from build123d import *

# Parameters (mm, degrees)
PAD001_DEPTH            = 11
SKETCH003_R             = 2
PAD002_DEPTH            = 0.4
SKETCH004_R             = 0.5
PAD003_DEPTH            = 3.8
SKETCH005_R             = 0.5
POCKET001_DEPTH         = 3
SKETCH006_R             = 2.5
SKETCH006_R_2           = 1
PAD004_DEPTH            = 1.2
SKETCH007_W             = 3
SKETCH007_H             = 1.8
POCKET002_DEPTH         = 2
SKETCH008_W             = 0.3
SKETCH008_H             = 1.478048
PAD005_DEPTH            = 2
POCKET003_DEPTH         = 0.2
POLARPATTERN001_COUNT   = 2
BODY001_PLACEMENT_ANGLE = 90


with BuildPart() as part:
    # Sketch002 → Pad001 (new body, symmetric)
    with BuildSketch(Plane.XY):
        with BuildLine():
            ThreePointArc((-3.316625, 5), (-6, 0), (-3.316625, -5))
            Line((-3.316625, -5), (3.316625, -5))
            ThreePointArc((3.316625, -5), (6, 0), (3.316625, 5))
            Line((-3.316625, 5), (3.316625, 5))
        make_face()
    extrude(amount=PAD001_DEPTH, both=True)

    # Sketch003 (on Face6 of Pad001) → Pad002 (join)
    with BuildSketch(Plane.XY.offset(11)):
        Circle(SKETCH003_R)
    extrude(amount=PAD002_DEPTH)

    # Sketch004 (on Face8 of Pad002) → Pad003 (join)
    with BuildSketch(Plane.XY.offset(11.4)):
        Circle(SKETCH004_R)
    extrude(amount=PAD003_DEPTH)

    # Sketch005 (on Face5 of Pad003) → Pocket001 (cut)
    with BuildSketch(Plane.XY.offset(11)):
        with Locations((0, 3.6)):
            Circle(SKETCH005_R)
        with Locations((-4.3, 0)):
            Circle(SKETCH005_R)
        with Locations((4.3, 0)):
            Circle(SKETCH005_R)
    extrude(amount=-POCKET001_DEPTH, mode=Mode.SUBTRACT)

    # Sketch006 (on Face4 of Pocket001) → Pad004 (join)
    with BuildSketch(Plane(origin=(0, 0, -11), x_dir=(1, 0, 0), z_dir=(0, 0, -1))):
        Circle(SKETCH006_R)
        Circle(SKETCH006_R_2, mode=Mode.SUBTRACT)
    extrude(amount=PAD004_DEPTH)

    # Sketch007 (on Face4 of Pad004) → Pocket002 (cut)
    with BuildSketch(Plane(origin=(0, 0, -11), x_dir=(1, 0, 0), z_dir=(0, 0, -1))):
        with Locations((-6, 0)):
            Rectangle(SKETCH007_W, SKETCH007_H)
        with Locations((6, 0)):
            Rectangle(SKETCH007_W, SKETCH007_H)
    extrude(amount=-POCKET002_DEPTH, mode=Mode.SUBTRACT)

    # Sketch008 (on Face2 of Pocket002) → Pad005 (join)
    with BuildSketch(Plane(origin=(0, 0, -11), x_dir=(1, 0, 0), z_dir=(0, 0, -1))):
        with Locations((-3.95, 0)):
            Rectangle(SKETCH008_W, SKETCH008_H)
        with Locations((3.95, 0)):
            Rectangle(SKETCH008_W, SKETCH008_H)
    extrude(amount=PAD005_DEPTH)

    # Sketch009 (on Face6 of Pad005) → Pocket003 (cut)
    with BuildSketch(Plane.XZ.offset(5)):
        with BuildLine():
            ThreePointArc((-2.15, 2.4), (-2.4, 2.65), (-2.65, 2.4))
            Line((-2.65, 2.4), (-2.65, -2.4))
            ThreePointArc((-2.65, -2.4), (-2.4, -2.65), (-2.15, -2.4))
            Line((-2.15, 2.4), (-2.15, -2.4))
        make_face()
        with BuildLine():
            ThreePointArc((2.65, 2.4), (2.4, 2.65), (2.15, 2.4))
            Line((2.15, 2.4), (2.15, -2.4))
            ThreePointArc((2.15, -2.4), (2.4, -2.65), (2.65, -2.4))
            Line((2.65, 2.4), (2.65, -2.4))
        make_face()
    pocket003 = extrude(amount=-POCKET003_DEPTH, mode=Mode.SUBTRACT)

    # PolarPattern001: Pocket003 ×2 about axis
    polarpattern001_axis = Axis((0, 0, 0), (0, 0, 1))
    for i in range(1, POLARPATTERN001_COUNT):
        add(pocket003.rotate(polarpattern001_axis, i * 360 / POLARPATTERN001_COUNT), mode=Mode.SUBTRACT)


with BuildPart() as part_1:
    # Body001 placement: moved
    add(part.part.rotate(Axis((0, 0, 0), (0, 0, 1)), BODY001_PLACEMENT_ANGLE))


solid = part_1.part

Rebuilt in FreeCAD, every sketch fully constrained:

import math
import FreeCAD as App
import Part
import Sketcher
from FreeCAD import Vector

doc = App.newDocument("Part")
params = doc.addObject("Spreadsheet::Sheet", "Params")
for row, (alias, value) in enumerate([
    ("sketch1_radius", "6 mm"),
    ("pad1_length", "22 mm"),
    ("sketch2_diameter", "4 mm"),
    ("pad2_length", "0.4 mm"),
    ("sketch3_diameter", "1 mm"),
    ("pad3_length", "3.8 mm"),
    ("sketch4_diameter", "1 mm"),
    ("pocket1_length", "3 mm"),
    ("sketch5_diameter", "5 mm"),
    ("sketch5_diameter2", "2 mm"),
    ("pad4_length", "1.2 mm"),
    ("sketch6_width", "3 mm"),
    ("sketch6_height", "1.8 mm"),
    ("pocket2_length", "2 mm"),
    ("sketch7_width", "0.3 mm"),
    ("pad5_length", "2 mm"),
    ("sketch8_radius", "0.25 mm"),
    ("sketch8_height", "4.8 mm"),
    ("pocket3_length", "0.2 mm"),
], start=1):
    params.set(f"A{row}", alias)
    params.set(f"B{row}", "=" + value)
    params.setAlias(f"B{row}", alias)

body = doc.addObject("PartDesign::Body", "Body")

# Sketch on XY plane
sketch1 = body.newObject("Sketcher::SketchObject", "Sketch")
sketch1.AttachmentSupport = (doc.getObject("XY_Plane"), [""])
sketch1.MapMode = "FlatFace"
sketch1.addGeometry([
    Part.ArcOfCircle(Part.Circle(Vector(0, 0, 0), Vector(0, 0, 1), 6), math.radians(124), math.radians(236)),
    Part.LineSegment(Vector(-3, -5, 0), Vector(3, -5, 0)),
    Part.ArcOfCircle(Part.Circle(Vector(0, 0, 0), Vector(0, 0, 1), 6), math.radians(-56), math.radians(56)),
    Part.LineSegment(Vector(3, 5, 0), Vector(-3, 5, 0)),
], False)
sketch1.addConstraint([
    Sketcher.Constraint("Coincident", 0, 2, 1, 1),
    Sketcher.Constraint("Coincident", 1, 2, 2, 1),
    Sketcher.Constraint("Coincident", 2, 2, 3, 1),
    Sketcher.Constraint("Coincident", 3, 2, 0, 1),
    Sketcher.Constraint("Horizontal", 1),
    Sketcher.Constraint("Horizontal", 3),
    Sketcher.Constraint("Coincident", 0, 3, -1, 1),
    Sketcher.Constraint("Coincident", 2, 3, -1, 1),
    Sketcher.Constraint("Equal", 0, 2),
    Sketcher.Constraint("Vertical", 1, 2, 2, 2),
    Sketcher.Constraint("Radius", 0, 6.0),
    Sketcher.Constraint("DistanceY", 0, 2, -1, 1, 5.0),
])
sketch1.setExpression("Constraints[10]", "Params.sketch1_radius")
pad1 = body.newObject("PartDesign::Pad", "Pad")
pad1.Profile = sketch1
pad1.setExpression("Length", "Params.pad1_length")
pad1.Midplane = True

# Sketch on XY plane
sketch2 = body.newObject("Sketcher::SketchObject", "Sketch001")
sketch2.AttachmentSupport = (doc.getObject("XY_Plane"), [""])
sketch2.MapMode = "FlatFace"
sketch2.AttachmentOffset = App.Placement(Vector(0, 0, 11), App.Rotation())
sketch2.addGeometry(Part.Circle(Vector(0, 0, 0), Vector(0, 0, 1), 2), False)
sketch2.addConstraint([
    Sketcher.Constraint("Coincident", 0, 3, -1, 1),
    Sketcher.Constraint("Diameter", 0, 4.0),
])
sketch2.setExpression("Constraints[1]", "Params.sketch2_diameter")
pad2 = body.newObject("PartDesign::Pad", "Pad001")
pad2.Profile = sketch2
pad2.setExpression("Length", "Params.pad2_length")

# Sketch on XY plane
sketch3 = body.newObject("Sketcher::SketchObject", "Sketch002")
sketch3.AttachmentSupport = (doc.getObject("XY_Plane"), [""])
sketch3.MapMode = "FlatFace"
sketch3.AttachmentOffset = App.Placement(Vector(0, 0, 11.4), App.Rotation())
sketch3.addGeometry(Part.Circle(Vector(0, 0, 0), Vector(0, 0, 1), 0.5), False)
sketch3.addConstraint([
    Sketcher.Constraint("Coincident", 0, 3, -1, 1),
    Sketcher.Constraint("Diameter", 0, 1.0),
])
sketch3.setExpression("Constraints[1]", "Params.sketch3_diameter")
pad3 = body.newObject("PartDesign::Pad", "Pad002")
pad3.Profile = sketch3
pad3.setExpression("Length", "Params.pad3_length")

# Sketch on XY plane
sketch4 = body.newObject("Sketcher::SketchObject", "Sketch003")
sketch4.AttachmentSupport = (doc.getObject("XY_Plane"), [""])
sketch4.MapMode = "FlatFace"
sketch4.AttachmentOffset = App.Placement(Vector(0, 0, 11), App.Rotation())
sketch4.addGeometry([
    Part.Circle(Vector(0, 3.6, 0), Vector(0, 0, 1), 0.5),
    Part.Circle(Vector(-4.3, 0, 0), Vector(0, 0, 1), 0.5),
    Part.Circle(Vector(4.3, 0, 0), Vector(0, 0, 1), 0.5),
], False)
sketch4.addConstraint([
    Sketcher.Constraint("Equal", 0, 1),
    Sketcher.Constraint("Equal", 1, 2),
    Sketcher.Constraint("Symmetric", 1, 3, 2, 3, -1, 1),
    Sketcher.Constraint("PointOnObject", 0, 3, -2),
    Sketcher.Constraint("PointOnObject", 1, 3, -1),
    Sketcher.Constraint("Diameter", 0, 1.0),
    Sketcher.Constraint("DistanceY", -1, 1, 0, 3, 3.6),
    Sketcher.Constraint("DistanceX", 1, 3, -1, 1, 4.3),
])
sketch4.setExpression("Constraints[5]", "Params.sketch4_diameter")
pocket1 = body.newObject("PartDesign::Pocket", "Pocket")
pocket1.Profile = sketch4
pocket1.setExpression("Length", "Params.pocket1_length")

# Sketch on XY plane
sketch5 = body.newObject("Sketcher::SketchObject", "Sketch004")
sketch5.AttachmentSupport = (doc.getObject("XY_Plane"), [""])
sketch5.MapMode = "FlatFace"
sketch5.AttachmentOffset = App.Placement(Vector(0, 0, -11), App.Rotation())
sketch5.addGeometry([
    Part.Circle(Vector(0, 0, 0), Vector(0, 0, 1), 2.5),
    Part.Circle(Vector(0, 0, 0), Vector(0, 0, 1), 1),
], False)
sketch5.addConstraint([
    Sketcher.Constraint("Coincident", 0, 3, -1, 1),
    Sketcher.Constraint("Coincident", 1, 3, -1, 1),
    Sketcher.Constraint("Diameter", 0, 5.0),
    Sketcher.Constraint("Diameter", 1, 2.0),
])
sketch5.setExpression("Constraints[2]", "Params.sketch5_diameter")
sketch5.setExpression("Constraints[3]", "Params.sketch5_diameter2")
pad4 = body.newObject("PartDesign::Pad", "Pad003")
pad4.Profile = sketch5
pad4.setExpression("Length", "Params.pad4_length")
pad4.Reversed = True

# Sketch on XY plane
sketch6 = body.newObject("Sketcher::SketchObject", "Sketch005")
sketch6.AttachmentSupport = (doc.getObject("XY_Plane"), [""])
sketch6.MapMode = "FlatFace"
sketch6.AttachmentOffset = App.Placement(Vector(0, 0, -11), App.Rotation())
sketch6.addGeometry([
    Part.LineSegment(Vector(-7.5, -0.9, 0), Vector(-7.5, 0.9, 0)),  # 0
    Part.LineSegment(Vector(-7.5, 0.9, 0), Vector(-4.5, 0.9, 0)),  # 1
    Part.LineSegment(Vector(-4.5, 0.9, 0), Vector(-4.5, -0.9, 0)),  # 2
    Part.LineSegment(Vector(-4.5, -0.9, 0), Vector(-7.5, -0.9, 0)),  # 3
    Part.LineSegment(Vector(4.5, -0.9, 0), Vector(4.5, 0.9, 0)),  # 4
    Part.LineSegment(Vector(4.5, 0.9, 0), Vector(7.5, 0.9, 0)),  # 5
    Part.LineSegment(Vector(7.5, 0.9, 0), Vector(7.5, -0.9, 0)),  # 6
    Part.LineSegment(Vector(7.5, -0.9, 0), Vector(4.5, -0.9, 0)),  # 7
], False)
sketch6.addConstraint([
    Sketcher.Constraint("Coincident", 0, 2, 1, 1),
    Sketcher.Constraint("Coincident", 1, 2, 2, 1),
    Sketcher.Constraint("Coincident", 2, 2, 3, 1),
    Sketcher.Constraint("Coincident", 3, 2, 0, 1),
    Sketcher.Constraint("Coincident", 4, 2, 5, 1),
    Sketcher.Constraint("Coincident", 5, 2, 6, 1),
    Sketcher.Constraint("Coincident", 6, 2, 7, 1),
    Sketcher.Constraint("Coincident", 7, 2, 4, 1),
    Sketcher.Constraint("Vertical", 0),
    Sketcher.Constraint("Horizontal", 1),
    Sketcher.Constraint("Vertical", 2),
    Sketcher.Constraint("Horizontal", 3),
    Sketcher.Constraint("Vertical", 4),
    Sketcher.Constraint("Horizontal", 5),
    Sketcher.Constraint("Vertical", 6),
    Sketcher.Constraint("Horizontal", 7),
    Sketcher.Constraint("Symmetric", 2, 2, 4, 2, -1, 1),
    Sketcher.Constraint("Symmetric", 0, 2, 6, 2, -1, 1),
    Sketcher.Constraint("Horizontal", 1, 2, 4, 2),
    Sketcher.Constraint("DistanceX", 1, 1, 1, 2, 3.0),
    Sketcher.Constraint("DistanceY", 0, 1, 0, 2, 1.8),
    Sketcher.Constraint("DistanceX", 1, 2, 4, 2, 9.0),
])
sketch6.setExpression("Constraints[19]", "Params.sketch6_width")
sketch6.setExpression("Constraints[20]", "Params.sketch6_height")
pocket2 = body.newObject("PartDesign::Pocket", "Pocket001")
pocket2.Profile = sketch6
pocket2.setExpression("Length", "Params.pocket2_length")
pocket2.Reversed = True

# Sketch on XY plane
sketch7 = body.newObject("Sketcher::SketchObject", "Sketch006")
sketch7.AttachmentSupport = (doc.getObject("XY_Plane"), [""])
sketch7.MapMode = "FlatFace"
sketch7.AttachmentOffset = App.Placement(Vector(0, 0, -11), App.Rotation())
sketch7.addGeometry([
    Part.LineSegment(Vector(-4.1, -0.74, 0), Vector(-4.1, 0.74, 0)),  # 0
    Part.LineSegment(Vector(-4.1, 0.74, 0), Vector(-3.8, 0.74, 0)),  # 1
    Part.LineSegment(Vector(-3.8, 0.74, 0), Vector(-3.8, -0.74, 0)),  # 2
    Part.LineSegment(Vector(-3.8, -0.74, 0), Vector(-4.1, -0.74, 0)),  # 3
    Part.LineSegment(Vector(3.8, -0.74, 0), Vector(3.8, 0.74, 0)),  # 4
    Part.LineSegment(Vector(3.8, 0.74, 0), Vector(4.1, 0.74, 0)),  # 5
    Part.LineSegment(Vector(4.1, 0.74, 0), Vector(4.1, -0.74, 0)),  # 6
    Part.LineSegment(Vector(4.1, -0.74, 0), Vector(3.8, -0.74, 0)),  # 7
], False)
sketch7.addConstraint([
    Sketcher.Constraint("Coincident", 0, 2, 1, 1),
    Sketcher.Constraint("Coincident", 1, 2, 2, 1),
    Sketcher.Constraint("Coincident", 2, 2, 3, 1),
    Sketcher.Constraint("Coincident", 3, 2, 0, 1),
    Sketcher.Constraint("Coincident", 4, 2, 5, 1),
    Sketcher.Constraint("Coincident", 5, 2, 6, 1),
    Sketcher.Constraint("Coincident", 6, 2, 7, 1),
    Sketcher.Constraint("Coincident", 7, 2, 4, 1),
    Sketcher.Constraint("Vertical", 0),
    Sketcher.Constraint("Horizontal", 1),
    Sketcher.Constraint("Vertical", 2),
    Sketcher.Constraint("Horizontal", 3),
    Sketcher.Constraint("Vertical", 4),
    Sketcher.Constraint("Horizontal", 5),
    Sketcher.Constraint("Vertical", 6),
    Sketcher.Constraint("Horizontal", 7),
    Sketcher.Constraint("Symmetric", 2, 2, 4, 2, -1, 1),
    Sketcher.Constraint("Symmetric", 0, 2, 6, 2, -1, 1),
    Sketcher.Constraint("Horizontal", 1, 2, 4, 2),
    Sketcher.Constraint("DistanceX", 1, 1, 1, 2, 0.3),
    Sketcher.Constraint("DistanceX", 0, 2, -1, 1, 4.1),
    Sketcher.Constraint("DistanceY", 0, 1, 0, 2, 1.478048),
])
sketch7.setExpression("Constraints[19]", "Params.sketch7_width")
pad5 = body.newObject("PartDesign::Pad", "Pad004")
pad5.Profile = sketch7
pad5.setExpression("Length", "Params.pad5_length")
pad5.Reversed = True

# Sketch on XZ plane
sketch8 = body.newObject("Sketcher::SketchObject", "Sketch007")
sketch8.AttachmentSupport = (doc.getObject("XZ_Plane"), [""])
sketch8.MapMode = "FlatFace"
sketch8.AttachmentOffset = App.Placement(Vector(0, 0, 5), App.Rotation())
sketch8.addGeometry([
    Part.ArcOfCircle(Part.Circle(Vector(-2.4, 2.4, 0), Vector(0, 0, 1), 0.25), math.radians(0), math.radians(180)),  # 0
    Part.LineSegment(Vector(-2.65, 2.4, 0), Vector(-2.65, -2.4, 0)),  # 1
    Part.ArcOfCircle(Part.Circle(Vector(-2.4, -2.4, 0), Vector(0, 0, 1), 0.25), math.radians(180), math.radians(360)),  # 2
    Part.LineSegment(Vector(-2.15, -2.4, 0), Vector(-2.15, 2.4, 0)),  # 3
    Part.ArcOfCircle(Part.Circle(Vector(2.4, 2.4, 0), Vector(0, 0, 1), 0.25), math.radians(0), math.radians(180)),  # 4
    Part.LineSegment(Vector(2.15, 2.4, 0), Vector(2.15, -2.4, 0)),  # 5
    Part.ArcOfCircle(Part.Circle(Vector(2.4, -2.4, 0), Vector(0, 0, 1), 0.25), math.radians(180), math.radians(360)),  # 6
    Part.LineSegment(Vector(2.65, -2.4, 0), Vector(2.65, 2.4, 0)),  # 7
], False)
sketch8.addConstraint([
    Sketcher.Constraint("Tangent", 0, 2, 1, 1),
    Sketcher.Constraint("Tangent", 1, 2, 2, 1),
    Sketcher.Constraint("Tangent", 2, 2, 3, 1),
    Sketcher.Constraint("Tangent", 3, 2, 0, 1),
    Sketcher.Constraint("Tangent", 4, 2, 5, 1),
    Sketcher.Constraint("Tangent", 5, 2, 6, 1),
    Sketcher.Constraint("Tangent", 6, 2, 7, 1),
    Sketcher.Constraint("Tangent", 7, 2, 4, 1),
    Sketcher.Constraint("Vertical", 1),
    Sketcher.Constraint("Vertical", 3),
    Sketcher.Constraint("Vertical", 5),
    Sketcher.Constraint("Vertical", 7),
    Sketcher.Constraint("Equal", 2, 4),
    Sketcher.Constraint("Symmetric", 2, 3, 4, 3, -1, 1),
    Sketcher.Constraint("Horizontal", 0, 3, 4, 3),
    Sketcher.Constraint("Horizontal", 2, 3, 6, 3),
    Sketcher.Constraint("Radius", 0, 0.25),
    Sketcher.Constraint("DistanceY", 1, 2, 1, 1, 4.8),
    Sketcher.Constraint("DistanceX", 0, 3, -1, 1, 2.4),
])
sketch8.setExpression("Constraints[16]", "Params.sketch8_radius")
sketch8.setExpression("Constraints[17]", "Params.sketch8_height")
pocket3 = body.newObject("PartDesign::Pocket", "Pocket002")
pocket3.Profile = sketch8
pocket3.setExpression("Length", "Params.pocket3_length")
doc.recompute()

polarpattern = body.newObject("PartDesign::PolarPattern", "PolarPattern")
polarpattern.Originals = [pocket3]
polarpattern.Axis = (doc.getObject("Z_Axis"), [""])
polarpattern.Angle = 360
polarpattern.Occurrences = 2
body.Tip = polarpattern
body2 = doc.addObject("PartDesign::Body", "Body001")
doc.recompute()

body.Placement = App.Placement(Vector(0, 0, 0), App.Rotation(Vector(0, 0, 1), 90))
boolean = body2.newObject("PartDesign::Boolean", "Boolean")
boolean.Type = "Fuse"
boolean.addObjects([body])

doc.recompute()
